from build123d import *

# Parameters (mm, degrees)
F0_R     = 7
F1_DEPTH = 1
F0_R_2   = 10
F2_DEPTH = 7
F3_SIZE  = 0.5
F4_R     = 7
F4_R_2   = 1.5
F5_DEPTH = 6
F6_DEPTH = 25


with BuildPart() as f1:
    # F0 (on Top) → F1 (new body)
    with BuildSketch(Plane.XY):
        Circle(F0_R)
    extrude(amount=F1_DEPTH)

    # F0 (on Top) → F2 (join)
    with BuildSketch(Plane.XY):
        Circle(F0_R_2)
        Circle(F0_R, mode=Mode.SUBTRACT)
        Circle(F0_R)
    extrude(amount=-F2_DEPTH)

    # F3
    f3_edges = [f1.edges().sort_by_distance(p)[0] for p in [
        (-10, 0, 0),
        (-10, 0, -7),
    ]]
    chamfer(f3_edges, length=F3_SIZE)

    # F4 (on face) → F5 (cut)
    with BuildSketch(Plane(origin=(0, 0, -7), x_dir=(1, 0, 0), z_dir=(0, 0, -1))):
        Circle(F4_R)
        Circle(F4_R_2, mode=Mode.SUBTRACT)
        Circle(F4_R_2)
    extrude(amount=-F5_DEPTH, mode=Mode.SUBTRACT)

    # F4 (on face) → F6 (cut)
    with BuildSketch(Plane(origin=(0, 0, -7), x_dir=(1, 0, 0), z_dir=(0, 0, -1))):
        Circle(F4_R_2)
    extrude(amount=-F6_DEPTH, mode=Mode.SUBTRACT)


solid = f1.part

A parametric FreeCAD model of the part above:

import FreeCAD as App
import Part
import Sketcher

V = App.Vector


def edges_at(feature, points):
    """Names of the edges that pass closest to the given points."""
    edges = feature.Shape.Edges
    near = lambda p: min(range(len(edges)), key=lambda i: edges[i].distToShape(Part.Vertex(*p))[0])
    return sorted({f"Edge{near(p) + 1}" for p in points})

doc = App.newDocument("Part")
body = doc.addObject("PartDesign::Body", "Body")

# Sketch on XY plane
sketch1 = body.newObject("Sketcher::SketchObject", "Sketch")
sketch1.AttachmentSupport = (doc.getObject("XY_Plane"), [""])
sketch1.MapMode = "FlatFace"
sketch1.addGeometry(Part.Circle(V(0, 0, 0), V(0, 0, 1), 7), False)
sketch1.addConstraint([
    Sketcher.Constraint("Coincident", 0, 3, -1, 1),
    Sketcher.Constraint("Diameter", 0, 14.0),
])
pad1 = body.newObject("PartDesign::Pad", "Pad")
pad1.Profile = sketch1
pad1.Length = 1

# Sketch on XY plane
sketch2 = body.newObject("Sketcher::SketchObject", "Sketch001")
sketch2.AttachmentSupport = (doc.getObject("XY_Plane"), [""])
sketch2.MapMode = "FlatFace"
sketch2.addGeometry(Part.Circle(V(0, 0, 0), V(0, 0, 1), 10), False)
sketch2.addConstraint([
    Sketcher.Constraint("Coincident", 0, 3, -1, 1),
    Sketcher.Constraint("Diameter", 0, 20.0),
])
pad2 = body.newObject("PartDesign::Pad", "Pad001")
pad2.Profile = sketch2
pad2.Length = 7
pad2.Reversed = True
doc.recompute()

chamfer = body.newObject("PartDesign::Chamfer", "Chamfer")
chamfer.Base = (pad2, edges_at(pad2, [(-10, 0, 0), (-10, 0, -7)]))
chamfer.Size = 0.5

# Sketch on XY plane
sketch3 = body.newObject("Sketcher::SketchObject", "Sketch002")
sketch3.AttachmentSupport = (doc.getObject("XY_Plane"), [""])
sketch3.MapMode = "FlatFace"
sketch3.AttachmentOffset = App.Placement(V(0, 0, -7), App.Rotation())
sketch3.addGeometry(Part.Circle(V(0, 0, 0), V(0, 0, 1), 7), False)
sketch3.addConstraint([
    Sketcher.Constraint("Coincident", 0, 3, -1, 1),
    Sketcher.Constraint("Diameter", 0, 14.0),
])
pocket1 = body.newObject("PartDesign::Pocket", "Pocket")
pocket1.Profile = sketch3
pocket1.Length = 6
pocket1.Reversed = True

# Sketch on XY plane
sketch4 = body.newObject("Sketcher::SketchObject", "Sketch003")
sketch4.AttachmentSupport = (doc.getObject("XY_Plane"), [""])
sketch4.MapMode = "FlatFace"
sketch4.AttachmentOffset = App.Placement(V(0, 0, -7), App.Rotation())
sketch4.addGeometry(Part.Circle(V(0, 0, 0), V(0, 0, 1), 1.5), False)
sketch4.addConstraint([
    Sketcher.Constraint("Coincident", 0, 3, -1, 1),
    Sketcher.Constraint("Diameter", 0, 3.0),
])
pocket2 = body.newObject("PartDesign::Pocket", "Pocket001")
pocket2.Profile = sketch4
pocket2.Length = 25
pocket2.Reversed = True

doc.recompute()
